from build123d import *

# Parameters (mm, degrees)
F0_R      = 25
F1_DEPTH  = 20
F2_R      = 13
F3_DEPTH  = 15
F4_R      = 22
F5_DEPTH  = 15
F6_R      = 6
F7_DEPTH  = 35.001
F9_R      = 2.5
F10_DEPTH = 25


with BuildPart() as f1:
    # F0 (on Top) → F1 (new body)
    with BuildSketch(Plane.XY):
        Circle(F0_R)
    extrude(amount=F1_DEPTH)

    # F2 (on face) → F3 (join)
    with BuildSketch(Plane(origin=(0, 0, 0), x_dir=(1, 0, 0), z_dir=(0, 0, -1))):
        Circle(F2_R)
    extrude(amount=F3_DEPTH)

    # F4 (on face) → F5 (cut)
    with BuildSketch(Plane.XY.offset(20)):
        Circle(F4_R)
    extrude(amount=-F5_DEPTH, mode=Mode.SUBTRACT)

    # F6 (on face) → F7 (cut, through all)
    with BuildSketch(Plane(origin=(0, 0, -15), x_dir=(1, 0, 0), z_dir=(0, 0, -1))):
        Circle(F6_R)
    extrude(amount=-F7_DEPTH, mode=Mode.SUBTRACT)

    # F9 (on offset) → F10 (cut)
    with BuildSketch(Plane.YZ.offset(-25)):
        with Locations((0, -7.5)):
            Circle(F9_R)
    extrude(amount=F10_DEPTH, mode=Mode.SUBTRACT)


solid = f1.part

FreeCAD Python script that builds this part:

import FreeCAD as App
import Part
import Sketcher

V = App.Vector
Q = App.Units.Quantity

doc = App.newDocument("Part")
body = doc.addObject("PartDesign::Body", "Body")

# Sketch on XY plane
sketch1 = doc.addObject("Sketcher::SketchObject", "Sketch")
body.addObject(sketch1)
sketch1.AttachmentSupport = (doc.XY_Plane, [""])
sketch1.MapMode = "FlatFace"
sketch1.addGeometry(Part.Circle(V(0, 0, 0), V(0, 0, 1), 25), False)
sketch1.addConstraint(Sketcher.Constraint("Coincident", 0, 3, -1, 1))
sketch1.addConstraint(Sketcher.Constraint("Diameter", 0, Q("50 mm")))
pad1 = doc.addObject("PartDesign::Pad", "Pad")
body.addObject(pad1)
pad1.Profile = sketch1
pad1.Length = 20

# Sketch on XY plane
sketch2 = doc.addObject("Sketcher::SketchObject", "Sketch001")
body.addObject(sketch2)
sketch2.AttachmentSupport = (doc.XY_Plane, [""])
sketch2.MapMode = "FlatFace"
sketch2.addGeometry(Part.Circle(V(0, 0, 0), V(0, 0, 1), 13), False)
sketch2.addConstraint(Sketcher.Constraint("Coincident", 0, 3, -1, 1))
sketch2.addConstraint(Sketcher.Constraint("Diameter", 0, Q("26 mm")))
pad2 = doc.addObject("PartDesign::Pad", "Pad001")
body.addObject(pad2)
pad2.Profile = sketch2
pad2.Length = 15
pad2.Reversed = True

# Sketch on XY plane
sketch3 = doc.addObject("Sketcher::SketchObject", "Sketch002")
body.addObject(sketch3)
sketch3.AttachmentSupport = (doc.XY_Plane, [""])
sketch3.MapMode = "FlatFace"
sketch3.AttachmentOffset = App.Placement(V(0, 0, 20), App.Rotation())
sketch3.addGeometry(Part.Circle(V(0, 0, 0), V(0, 0, 1), 22), False)
sketch3.addConstraint(Sketcher.Constraint("Coincident", 0, 3, -1, 1))
sketch3.addConstraint(Sketcher.Constraint("Diameter", 0, Q("44 mm")))
pocket1 = doc.addObject("PartDesign::Pocket", "Pocket")
body.addObject(pocket1)
pocket1.Profile = sketch3
pocket1.Length = 15

# Sketch on XY plane
sketch4 = doc.addObject("Sketcher::SketchObject", "Sketch003")
body.addObject(sketch4)
sketch4.AttachmentSupport = (doc.XY_Plane, [""])
sketch4.MapMode = "FlatFace"
sketch4.AttachmentOffset = App.Placement(V(0, 0, -15), App.Rotation())
sketch4.addGeometry(Part.Circle(V(0, 0, 0), V(0, 0, 1), 6), False)
sketch4.addConstraint(Sketcher.Constraint("Coincident", 0, 3, -1, 1))
sketch4.addConstraint(Sketcher.Constraint("Diameter", 0, Q("12 mm")))
pocket2 = doc.addObject("PartDesign::Pocket", "Pocket001")
body.addObject(pocket2)
pocket2.Profile = sketch4
pocket2.Type = "ThroughAll"
pocket2.Reversed = True

# Sketch on YZ plane
sketch5 = doc.addObject("Sketcher::SketchObject", "Sketch004")
body.addObject(sketch5)
sketch5.AttachmentSupport = (doc.YZ_Plane, [""])
sketch5.MapMode = "FlatFace"
sketch5.AttachmentOffset = App.Placement(V(0, 0, -25), App.Rotation())
sketch5.addGeometry(Part.Circle(V(0, -7.5, 0), V(0, 0, 1), 2.5), False)
sketch5.addConstraint(Sketcher.Constraint("PointOnObject", 0, 3, -2))
sketch5.addConstraint(Sketcher.Constraint("Diameter", 0, Q("5 mm")))
sketch5.addConstraint(Sketcher.Constraint("DistanceY", 0, 3, -1, 1, Q("7.5 mm")))
pocket3 = doc.addObject("PartDesign::Pocket", "Pocket002")
body.addObject(pocket3)
pocket3.Profile = sketch5
pocket3.Length = 25
pocket3.Reversed = True

doc.recompute()
